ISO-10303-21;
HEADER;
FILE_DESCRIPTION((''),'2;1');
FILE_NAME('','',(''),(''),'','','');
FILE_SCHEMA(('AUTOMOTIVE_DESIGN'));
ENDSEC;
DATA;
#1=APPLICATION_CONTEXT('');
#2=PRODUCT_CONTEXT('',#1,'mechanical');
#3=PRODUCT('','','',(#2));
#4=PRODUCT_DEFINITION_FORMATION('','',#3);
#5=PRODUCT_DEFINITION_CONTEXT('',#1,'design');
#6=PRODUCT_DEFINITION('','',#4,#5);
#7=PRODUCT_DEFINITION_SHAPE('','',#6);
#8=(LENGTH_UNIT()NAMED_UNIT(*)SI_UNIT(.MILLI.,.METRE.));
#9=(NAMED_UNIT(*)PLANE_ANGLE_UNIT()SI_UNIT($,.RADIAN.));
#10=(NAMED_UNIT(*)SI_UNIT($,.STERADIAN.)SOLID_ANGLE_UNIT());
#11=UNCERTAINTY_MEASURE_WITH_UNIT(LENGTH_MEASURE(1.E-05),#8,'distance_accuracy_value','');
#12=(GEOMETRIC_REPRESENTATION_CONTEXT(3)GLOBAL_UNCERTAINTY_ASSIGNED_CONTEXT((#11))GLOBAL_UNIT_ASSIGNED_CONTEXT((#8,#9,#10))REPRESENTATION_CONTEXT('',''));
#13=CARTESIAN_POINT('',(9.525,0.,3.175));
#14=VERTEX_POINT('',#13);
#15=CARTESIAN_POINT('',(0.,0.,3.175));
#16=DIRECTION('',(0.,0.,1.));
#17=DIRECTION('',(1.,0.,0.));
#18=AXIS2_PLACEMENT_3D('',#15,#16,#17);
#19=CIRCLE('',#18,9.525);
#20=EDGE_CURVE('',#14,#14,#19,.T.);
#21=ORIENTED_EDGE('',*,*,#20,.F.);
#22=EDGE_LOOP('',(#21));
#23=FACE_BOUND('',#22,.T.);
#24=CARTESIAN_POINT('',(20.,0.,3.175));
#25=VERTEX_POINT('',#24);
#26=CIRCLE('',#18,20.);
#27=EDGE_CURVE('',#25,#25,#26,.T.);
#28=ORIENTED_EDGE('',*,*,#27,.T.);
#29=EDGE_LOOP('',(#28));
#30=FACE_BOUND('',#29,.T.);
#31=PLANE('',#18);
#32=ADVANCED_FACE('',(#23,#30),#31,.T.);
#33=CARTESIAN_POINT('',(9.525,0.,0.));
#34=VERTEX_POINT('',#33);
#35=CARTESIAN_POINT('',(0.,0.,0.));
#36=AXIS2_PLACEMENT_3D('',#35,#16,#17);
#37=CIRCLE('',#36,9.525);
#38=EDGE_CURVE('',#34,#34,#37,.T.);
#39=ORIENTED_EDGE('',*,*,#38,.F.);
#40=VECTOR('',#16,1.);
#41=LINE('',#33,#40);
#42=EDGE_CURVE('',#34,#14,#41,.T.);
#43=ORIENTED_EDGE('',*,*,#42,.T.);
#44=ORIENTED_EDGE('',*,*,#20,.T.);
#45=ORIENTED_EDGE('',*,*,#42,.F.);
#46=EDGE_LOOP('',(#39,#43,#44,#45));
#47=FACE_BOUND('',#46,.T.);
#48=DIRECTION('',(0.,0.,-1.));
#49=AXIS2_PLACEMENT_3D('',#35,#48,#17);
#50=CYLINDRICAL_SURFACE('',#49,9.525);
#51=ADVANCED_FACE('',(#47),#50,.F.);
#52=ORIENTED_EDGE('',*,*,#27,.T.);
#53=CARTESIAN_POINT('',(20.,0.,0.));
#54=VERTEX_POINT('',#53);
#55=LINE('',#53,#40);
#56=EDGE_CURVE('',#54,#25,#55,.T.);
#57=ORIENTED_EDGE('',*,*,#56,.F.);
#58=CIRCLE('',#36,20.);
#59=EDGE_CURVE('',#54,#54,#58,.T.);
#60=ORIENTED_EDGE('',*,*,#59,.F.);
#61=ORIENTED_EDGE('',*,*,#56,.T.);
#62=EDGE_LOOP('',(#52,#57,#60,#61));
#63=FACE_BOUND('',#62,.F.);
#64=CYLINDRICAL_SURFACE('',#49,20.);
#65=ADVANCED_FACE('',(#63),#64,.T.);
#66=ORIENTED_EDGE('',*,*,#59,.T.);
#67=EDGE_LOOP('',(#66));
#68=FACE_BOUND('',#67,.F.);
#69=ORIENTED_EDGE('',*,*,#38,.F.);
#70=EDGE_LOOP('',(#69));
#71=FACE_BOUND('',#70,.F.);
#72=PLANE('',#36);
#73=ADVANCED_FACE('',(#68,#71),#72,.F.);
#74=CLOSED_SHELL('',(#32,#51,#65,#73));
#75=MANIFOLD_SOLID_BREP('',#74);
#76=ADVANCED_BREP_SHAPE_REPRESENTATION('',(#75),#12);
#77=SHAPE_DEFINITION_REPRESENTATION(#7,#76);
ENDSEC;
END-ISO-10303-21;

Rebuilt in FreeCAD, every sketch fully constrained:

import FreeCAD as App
import Part
import Sketcher
from FreeCAD import Vector
Q = App.Units.Quantity

doc = App.newDocument("Part")
body = doc.addObject("PartDesign::Body", "Body")

# Sketch on XY plane
sketch1 = doc.addObject("Sketcher::SketchObject", "Sketch")
body.addObject(sketch1)
sketch1.AttachmentSupport = (doc.XY_Plane, [""])
sketch1.MapMode = "FlatFace"
sketch1.addGeometry([
    Part.Circle(Vector(0, 0, 0), Vector(0, 0, 1), 20),
    Part.Circle(Vector(0, 0, 0), Vector(0, 0, 1), 10),
], False)
sketch1.addConstraint([
    Sketcher.Constraint("Coincident", 0, 3, -1, 1),
    Sketcher.Constraint("Coincident", 1, 3, -1, 1),
    Sketcher.Constraint("Diameter", 1, Q("0.75 in")),
    Sketcher.Constraint("Diameter", 0, Q("1.5748 in")),
])
pad1 = doc.addObject("PartDesign::Pad", "Pad")
body.addObject(pad1)
pad1.Profile = sketch1
pad1.Length = Q("0.125 in")

doc.recompute()
